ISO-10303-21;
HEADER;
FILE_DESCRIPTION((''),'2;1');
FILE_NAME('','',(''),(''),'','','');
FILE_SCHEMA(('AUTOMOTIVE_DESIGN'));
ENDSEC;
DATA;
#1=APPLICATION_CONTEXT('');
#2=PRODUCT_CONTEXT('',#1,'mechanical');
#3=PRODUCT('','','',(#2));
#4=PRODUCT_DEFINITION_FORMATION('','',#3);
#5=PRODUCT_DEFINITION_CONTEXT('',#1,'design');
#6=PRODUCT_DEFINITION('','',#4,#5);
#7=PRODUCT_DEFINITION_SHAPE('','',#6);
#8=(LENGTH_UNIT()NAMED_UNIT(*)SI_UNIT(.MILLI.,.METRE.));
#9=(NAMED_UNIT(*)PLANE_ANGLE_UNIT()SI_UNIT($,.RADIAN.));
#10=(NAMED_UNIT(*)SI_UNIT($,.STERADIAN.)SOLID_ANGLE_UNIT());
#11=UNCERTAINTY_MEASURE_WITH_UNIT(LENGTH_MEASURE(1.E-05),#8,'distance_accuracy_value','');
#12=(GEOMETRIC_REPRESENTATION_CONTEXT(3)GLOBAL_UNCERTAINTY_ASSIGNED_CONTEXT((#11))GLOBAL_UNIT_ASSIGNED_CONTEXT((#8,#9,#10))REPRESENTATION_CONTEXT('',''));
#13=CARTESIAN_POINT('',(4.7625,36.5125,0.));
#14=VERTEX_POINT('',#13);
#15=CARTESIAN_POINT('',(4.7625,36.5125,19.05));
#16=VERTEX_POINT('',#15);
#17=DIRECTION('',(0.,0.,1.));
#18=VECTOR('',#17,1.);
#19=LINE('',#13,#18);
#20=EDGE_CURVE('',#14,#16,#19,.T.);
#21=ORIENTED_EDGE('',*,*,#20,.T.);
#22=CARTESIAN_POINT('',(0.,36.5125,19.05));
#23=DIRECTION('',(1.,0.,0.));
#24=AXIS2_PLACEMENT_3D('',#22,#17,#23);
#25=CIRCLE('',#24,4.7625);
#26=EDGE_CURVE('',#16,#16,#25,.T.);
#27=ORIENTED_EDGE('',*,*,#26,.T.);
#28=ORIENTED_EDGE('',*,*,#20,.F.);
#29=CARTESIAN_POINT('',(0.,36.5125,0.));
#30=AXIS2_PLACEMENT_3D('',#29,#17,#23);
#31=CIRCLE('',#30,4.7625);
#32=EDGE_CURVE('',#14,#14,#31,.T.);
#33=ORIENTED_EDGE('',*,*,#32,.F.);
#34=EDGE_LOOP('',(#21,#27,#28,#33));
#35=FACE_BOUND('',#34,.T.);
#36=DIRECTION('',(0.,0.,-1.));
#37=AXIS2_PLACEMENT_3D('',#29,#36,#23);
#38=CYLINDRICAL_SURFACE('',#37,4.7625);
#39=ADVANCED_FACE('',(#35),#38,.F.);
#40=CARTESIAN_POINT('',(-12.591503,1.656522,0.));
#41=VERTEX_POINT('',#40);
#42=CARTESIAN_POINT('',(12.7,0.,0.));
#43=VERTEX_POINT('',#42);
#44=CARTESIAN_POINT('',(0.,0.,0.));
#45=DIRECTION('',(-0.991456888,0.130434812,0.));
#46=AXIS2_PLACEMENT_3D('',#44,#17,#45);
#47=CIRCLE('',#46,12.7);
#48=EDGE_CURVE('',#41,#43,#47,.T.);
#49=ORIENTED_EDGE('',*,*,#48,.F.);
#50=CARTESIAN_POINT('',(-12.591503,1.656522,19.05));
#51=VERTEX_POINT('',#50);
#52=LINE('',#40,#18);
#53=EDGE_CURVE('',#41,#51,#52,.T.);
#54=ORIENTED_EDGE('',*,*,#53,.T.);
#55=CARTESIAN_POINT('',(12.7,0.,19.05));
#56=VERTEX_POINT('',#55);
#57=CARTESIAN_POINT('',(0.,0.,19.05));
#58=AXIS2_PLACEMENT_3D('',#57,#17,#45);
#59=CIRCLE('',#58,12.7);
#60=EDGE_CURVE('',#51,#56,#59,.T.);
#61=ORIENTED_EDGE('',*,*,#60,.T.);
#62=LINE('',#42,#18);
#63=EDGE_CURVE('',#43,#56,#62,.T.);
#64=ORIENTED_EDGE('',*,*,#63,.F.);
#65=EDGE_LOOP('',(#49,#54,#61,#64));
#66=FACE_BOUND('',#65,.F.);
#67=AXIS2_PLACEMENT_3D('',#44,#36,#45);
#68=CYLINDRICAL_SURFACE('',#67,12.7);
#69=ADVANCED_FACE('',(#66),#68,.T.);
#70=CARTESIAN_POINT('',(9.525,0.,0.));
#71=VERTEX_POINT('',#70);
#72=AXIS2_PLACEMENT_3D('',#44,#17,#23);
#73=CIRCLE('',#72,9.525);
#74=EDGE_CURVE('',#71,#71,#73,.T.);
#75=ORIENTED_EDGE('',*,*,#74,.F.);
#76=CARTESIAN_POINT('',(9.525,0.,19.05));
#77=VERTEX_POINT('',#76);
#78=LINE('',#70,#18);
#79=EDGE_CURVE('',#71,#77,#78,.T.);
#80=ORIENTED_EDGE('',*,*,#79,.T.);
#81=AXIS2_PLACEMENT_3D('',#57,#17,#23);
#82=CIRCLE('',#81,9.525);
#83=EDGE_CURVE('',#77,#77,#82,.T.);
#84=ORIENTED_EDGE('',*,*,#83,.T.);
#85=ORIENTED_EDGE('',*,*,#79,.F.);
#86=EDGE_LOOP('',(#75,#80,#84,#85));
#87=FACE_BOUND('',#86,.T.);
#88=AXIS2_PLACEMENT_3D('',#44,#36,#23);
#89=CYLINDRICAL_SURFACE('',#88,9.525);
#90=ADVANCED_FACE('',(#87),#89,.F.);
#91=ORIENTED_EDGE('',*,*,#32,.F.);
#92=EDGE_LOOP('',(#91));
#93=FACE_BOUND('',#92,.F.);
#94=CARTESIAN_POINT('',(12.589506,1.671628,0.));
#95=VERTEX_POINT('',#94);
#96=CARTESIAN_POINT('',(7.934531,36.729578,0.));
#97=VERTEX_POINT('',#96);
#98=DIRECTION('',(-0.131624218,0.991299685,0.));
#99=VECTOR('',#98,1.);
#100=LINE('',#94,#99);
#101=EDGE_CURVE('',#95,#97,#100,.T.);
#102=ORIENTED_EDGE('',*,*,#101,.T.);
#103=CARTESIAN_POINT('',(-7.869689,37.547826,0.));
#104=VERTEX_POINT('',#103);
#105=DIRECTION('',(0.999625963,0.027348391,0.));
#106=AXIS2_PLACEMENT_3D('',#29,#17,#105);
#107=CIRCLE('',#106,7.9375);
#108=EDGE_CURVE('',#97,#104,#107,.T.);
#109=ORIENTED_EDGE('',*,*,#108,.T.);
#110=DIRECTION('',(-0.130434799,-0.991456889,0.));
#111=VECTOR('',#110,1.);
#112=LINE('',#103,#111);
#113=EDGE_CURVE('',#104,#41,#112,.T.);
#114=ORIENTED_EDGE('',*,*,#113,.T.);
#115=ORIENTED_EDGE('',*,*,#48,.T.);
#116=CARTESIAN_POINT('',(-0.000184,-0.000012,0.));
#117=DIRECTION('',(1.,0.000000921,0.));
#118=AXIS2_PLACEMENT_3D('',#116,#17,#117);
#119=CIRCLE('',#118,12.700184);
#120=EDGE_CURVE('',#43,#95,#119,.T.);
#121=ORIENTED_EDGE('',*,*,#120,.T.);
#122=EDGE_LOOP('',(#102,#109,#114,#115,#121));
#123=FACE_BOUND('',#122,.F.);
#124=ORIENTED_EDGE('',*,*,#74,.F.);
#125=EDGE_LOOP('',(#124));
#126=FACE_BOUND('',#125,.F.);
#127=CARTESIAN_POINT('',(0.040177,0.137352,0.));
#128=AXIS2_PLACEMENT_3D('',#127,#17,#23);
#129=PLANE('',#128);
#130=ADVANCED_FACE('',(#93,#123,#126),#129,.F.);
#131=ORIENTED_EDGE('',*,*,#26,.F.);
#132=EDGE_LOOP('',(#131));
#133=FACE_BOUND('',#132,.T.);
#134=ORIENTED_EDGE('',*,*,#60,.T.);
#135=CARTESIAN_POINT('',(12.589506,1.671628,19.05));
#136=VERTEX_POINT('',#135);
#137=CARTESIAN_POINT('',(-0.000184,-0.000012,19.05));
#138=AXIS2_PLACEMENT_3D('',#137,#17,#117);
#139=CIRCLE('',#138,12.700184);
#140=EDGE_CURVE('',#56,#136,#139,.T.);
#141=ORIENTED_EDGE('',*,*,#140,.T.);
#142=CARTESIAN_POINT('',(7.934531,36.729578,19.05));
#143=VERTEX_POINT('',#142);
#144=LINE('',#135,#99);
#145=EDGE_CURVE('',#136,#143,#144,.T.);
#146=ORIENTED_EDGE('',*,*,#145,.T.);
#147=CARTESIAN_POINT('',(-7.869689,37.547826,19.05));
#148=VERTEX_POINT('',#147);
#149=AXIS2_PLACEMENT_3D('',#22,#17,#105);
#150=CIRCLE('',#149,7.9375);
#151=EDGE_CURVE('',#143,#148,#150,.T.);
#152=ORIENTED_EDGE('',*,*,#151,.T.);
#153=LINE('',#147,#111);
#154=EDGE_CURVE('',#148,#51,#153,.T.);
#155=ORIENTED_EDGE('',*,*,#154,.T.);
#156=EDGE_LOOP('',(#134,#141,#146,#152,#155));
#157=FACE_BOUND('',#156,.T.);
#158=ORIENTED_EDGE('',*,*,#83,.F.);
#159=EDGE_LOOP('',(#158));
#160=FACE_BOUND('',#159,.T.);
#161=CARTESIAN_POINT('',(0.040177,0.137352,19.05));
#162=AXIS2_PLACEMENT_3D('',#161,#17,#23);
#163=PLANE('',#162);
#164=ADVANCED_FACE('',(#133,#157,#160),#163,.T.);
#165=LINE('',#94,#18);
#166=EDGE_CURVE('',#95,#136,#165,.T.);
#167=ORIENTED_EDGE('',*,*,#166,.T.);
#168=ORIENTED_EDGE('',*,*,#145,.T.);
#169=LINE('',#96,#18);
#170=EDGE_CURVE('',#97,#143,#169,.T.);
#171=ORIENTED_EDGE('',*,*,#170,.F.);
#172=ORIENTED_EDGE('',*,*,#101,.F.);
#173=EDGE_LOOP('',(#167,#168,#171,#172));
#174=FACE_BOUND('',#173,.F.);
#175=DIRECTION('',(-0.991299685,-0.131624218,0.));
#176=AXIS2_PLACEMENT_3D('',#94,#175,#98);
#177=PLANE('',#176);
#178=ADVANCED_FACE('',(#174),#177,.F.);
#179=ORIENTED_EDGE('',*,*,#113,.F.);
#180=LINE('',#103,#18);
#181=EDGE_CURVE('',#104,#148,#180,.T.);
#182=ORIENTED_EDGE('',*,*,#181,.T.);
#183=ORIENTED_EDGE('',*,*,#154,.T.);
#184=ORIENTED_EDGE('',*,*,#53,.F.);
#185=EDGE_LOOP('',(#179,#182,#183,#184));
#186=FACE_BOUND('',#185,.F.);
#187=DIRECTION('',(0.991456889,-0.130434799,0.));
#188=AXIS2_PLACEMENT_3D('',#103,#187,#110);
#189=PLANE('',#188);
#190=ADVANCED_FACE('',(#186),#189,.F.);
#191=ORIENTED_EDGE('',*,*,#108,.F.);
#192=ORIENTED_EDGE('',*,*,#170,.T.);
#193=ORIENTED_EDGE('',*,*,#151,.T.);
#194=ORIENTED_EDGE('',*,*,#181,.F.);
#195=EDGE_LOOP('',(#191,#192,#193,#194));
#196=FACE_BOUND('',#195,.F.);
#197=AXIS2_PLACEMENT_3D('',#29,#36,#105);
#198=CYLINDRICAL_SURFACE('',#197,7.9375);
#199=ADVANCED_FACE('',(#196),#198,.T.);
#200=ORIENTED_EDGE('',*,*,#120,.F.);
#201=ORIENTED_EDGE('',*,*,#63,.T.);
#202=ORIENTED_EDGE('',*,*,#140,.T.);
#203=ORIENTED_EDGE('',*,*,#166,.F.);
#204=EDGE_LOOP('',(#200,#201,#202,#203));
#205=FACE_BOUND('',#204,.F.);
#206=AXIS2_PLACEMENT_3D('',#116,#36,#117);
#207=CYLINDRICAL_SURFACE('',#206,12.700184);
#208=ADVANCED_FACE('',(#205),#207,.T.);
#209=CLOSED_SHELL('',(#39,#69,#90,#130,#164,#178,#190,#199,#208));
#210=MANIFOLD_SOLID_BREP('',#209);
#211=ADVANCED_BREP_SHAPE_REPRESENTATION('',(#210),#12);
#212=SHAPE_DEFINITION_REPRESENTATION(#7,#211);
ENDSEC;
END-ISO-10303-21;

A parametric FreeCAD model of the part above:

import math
import FreeCAD as App
import Part
import Sketcher

V = App.Vector
Q = App.Units.Quantity

doc = App.newDocument("Part")
params = doc.addObject("Spreadsheet::Sheet", "Params")
for row, (alias, value) in enumerate([
    ("sketch1_radius", "0.5 in"),
    ("sketch1_diameter", "0.75 in"),
    ("sketch1_diameter2", "0.375 in"),
    ("sketch1_radius2", "0.3125 in"),
    ("pad1_length", "0.75 in"),
], start=1):
    params.set(f"A{row}", alias)
    params.set(f"B{row}", "=" + value)
    params.setAlias(f"B{row}", alias)

body = doc.addObject("PartDesign::Body", "Body")

sketch1 = doc.addObject("Sketcher::SketchObject", "Sketch")
body.addObject(sketch1)
sketch1.AttachmentSupport = (doc.XY_Plane, [""])
sketch1.MapMode = "FlatFace"
sketch1.addGeometry([
    Part.ArcOfCircle(Part.Circle(V(0, 0, 0), V(0, 0, 1), 12.7), math.radians(172.505281), math.radians(360.000001)),
    Part.ArcOfCircle(Part.Circle(V(-0.000184, -0.000012, 0), V(0, 0, 1), 12.700184), math.radians(0.000053), math.radians(7.563405)),
    Part.LineSegment(V(12.589506, 1.671628, 0), V(7.934531, 36.729578, 0)),
    Part.ArcOfCircle(Part.Circle(V(0, 36.5125, 0), V(0, 0, 1), 7.9375), math.radians(1.567143), math.radians(172.505284)),
    Part.LineSegment(V(-7.869689, 37.547826, 0), V(-12.591503, 1.656522, 0)),
    Part.Circle(V(0, 0, 0), V(0, 0, 1), 9.525),
    Part.Circle(V(0, 36.5125, 0), V(0, 0, 1), 4.7625),
], False)
sketch1.addConstraint([
    Sketcher.Constraint("Coincident", 0, 2, 1, 1),
    Sketcher.Constraint("Coincident", 1, 2, 2, 1),
    Sketcher.Constraint("Coincident", 2, 2, 3, 1),
    Sketcher.Constraint("Coincident", 3, 2, 4, 1),
    Sketcher.Constraint("Coincident", 4, 2, 0, 1),
    Sketcher.Constraint("Coincident", 0, 3, -1, 1),
    Sketcher.Constraint("Coincident", 5, 3, -1, 1),
    Sketcher.Constraint("Coincident", 6, 3, 3, 3),
    Sketcher.Constraint("PointOnObject", 3, 3, -2),
    Sketcher.Constraint("PointOnObject", 0, 2, -1),
    Sketcher.Constraint("Radius", 0, Q("0.5 in")),
    Sketcher.Constraint("Diameter", 5, Q("0.75 in")),
    Sketcher.Constraint("Diameter", 6, Q("0.375 in")),
    Sketcher.Constraint("Radius", 3, Q("0.3125 in")),
    Sketcher.Constraint("DistanceY", -1, 1, 3, 3, Q("1.4375 in")),
    Sketcher.Constraint("Radius", 1, Q("12.700184 mm")),
    Sketcher.Constraint("Distance", 4, Q("36.200569 mm")),
    Sketcher.Constraint("DistanceY", -1, 1, 1, 2, Q("1.671628 mm")),
    Sketcher.Constraint("DistanceX", -1, 1, 2, 2, Q("7.934531 mm")),
    Sketcher.Constraint("DistanceX", 3, 2, -1, 1, Q("7.869689 mm")),
    Sketcher.Constraint("DistanceY", 1, 3, 3, 3, Q("36.512512 mm")),
])
sketch1.setExpression("Constraints[10]", "Params.sketch1_radius")
sketch1.setExpression("Constraints[11]", "Params.sketch1_diameter")
sketch1.setExpression("Constraints[12]", "Params.sketch1_diameter2")
sketch1.setExpression("Constraints[13]", "Params.sketch1_radius2")
pad1 = doc.addObject("PartDesign::Pad", "Pad")
body.addObject(pad1)
pad1.Profile = sketch1
pad1.setExpression("Length", "Params.pad1_length")

doc.recompute()
